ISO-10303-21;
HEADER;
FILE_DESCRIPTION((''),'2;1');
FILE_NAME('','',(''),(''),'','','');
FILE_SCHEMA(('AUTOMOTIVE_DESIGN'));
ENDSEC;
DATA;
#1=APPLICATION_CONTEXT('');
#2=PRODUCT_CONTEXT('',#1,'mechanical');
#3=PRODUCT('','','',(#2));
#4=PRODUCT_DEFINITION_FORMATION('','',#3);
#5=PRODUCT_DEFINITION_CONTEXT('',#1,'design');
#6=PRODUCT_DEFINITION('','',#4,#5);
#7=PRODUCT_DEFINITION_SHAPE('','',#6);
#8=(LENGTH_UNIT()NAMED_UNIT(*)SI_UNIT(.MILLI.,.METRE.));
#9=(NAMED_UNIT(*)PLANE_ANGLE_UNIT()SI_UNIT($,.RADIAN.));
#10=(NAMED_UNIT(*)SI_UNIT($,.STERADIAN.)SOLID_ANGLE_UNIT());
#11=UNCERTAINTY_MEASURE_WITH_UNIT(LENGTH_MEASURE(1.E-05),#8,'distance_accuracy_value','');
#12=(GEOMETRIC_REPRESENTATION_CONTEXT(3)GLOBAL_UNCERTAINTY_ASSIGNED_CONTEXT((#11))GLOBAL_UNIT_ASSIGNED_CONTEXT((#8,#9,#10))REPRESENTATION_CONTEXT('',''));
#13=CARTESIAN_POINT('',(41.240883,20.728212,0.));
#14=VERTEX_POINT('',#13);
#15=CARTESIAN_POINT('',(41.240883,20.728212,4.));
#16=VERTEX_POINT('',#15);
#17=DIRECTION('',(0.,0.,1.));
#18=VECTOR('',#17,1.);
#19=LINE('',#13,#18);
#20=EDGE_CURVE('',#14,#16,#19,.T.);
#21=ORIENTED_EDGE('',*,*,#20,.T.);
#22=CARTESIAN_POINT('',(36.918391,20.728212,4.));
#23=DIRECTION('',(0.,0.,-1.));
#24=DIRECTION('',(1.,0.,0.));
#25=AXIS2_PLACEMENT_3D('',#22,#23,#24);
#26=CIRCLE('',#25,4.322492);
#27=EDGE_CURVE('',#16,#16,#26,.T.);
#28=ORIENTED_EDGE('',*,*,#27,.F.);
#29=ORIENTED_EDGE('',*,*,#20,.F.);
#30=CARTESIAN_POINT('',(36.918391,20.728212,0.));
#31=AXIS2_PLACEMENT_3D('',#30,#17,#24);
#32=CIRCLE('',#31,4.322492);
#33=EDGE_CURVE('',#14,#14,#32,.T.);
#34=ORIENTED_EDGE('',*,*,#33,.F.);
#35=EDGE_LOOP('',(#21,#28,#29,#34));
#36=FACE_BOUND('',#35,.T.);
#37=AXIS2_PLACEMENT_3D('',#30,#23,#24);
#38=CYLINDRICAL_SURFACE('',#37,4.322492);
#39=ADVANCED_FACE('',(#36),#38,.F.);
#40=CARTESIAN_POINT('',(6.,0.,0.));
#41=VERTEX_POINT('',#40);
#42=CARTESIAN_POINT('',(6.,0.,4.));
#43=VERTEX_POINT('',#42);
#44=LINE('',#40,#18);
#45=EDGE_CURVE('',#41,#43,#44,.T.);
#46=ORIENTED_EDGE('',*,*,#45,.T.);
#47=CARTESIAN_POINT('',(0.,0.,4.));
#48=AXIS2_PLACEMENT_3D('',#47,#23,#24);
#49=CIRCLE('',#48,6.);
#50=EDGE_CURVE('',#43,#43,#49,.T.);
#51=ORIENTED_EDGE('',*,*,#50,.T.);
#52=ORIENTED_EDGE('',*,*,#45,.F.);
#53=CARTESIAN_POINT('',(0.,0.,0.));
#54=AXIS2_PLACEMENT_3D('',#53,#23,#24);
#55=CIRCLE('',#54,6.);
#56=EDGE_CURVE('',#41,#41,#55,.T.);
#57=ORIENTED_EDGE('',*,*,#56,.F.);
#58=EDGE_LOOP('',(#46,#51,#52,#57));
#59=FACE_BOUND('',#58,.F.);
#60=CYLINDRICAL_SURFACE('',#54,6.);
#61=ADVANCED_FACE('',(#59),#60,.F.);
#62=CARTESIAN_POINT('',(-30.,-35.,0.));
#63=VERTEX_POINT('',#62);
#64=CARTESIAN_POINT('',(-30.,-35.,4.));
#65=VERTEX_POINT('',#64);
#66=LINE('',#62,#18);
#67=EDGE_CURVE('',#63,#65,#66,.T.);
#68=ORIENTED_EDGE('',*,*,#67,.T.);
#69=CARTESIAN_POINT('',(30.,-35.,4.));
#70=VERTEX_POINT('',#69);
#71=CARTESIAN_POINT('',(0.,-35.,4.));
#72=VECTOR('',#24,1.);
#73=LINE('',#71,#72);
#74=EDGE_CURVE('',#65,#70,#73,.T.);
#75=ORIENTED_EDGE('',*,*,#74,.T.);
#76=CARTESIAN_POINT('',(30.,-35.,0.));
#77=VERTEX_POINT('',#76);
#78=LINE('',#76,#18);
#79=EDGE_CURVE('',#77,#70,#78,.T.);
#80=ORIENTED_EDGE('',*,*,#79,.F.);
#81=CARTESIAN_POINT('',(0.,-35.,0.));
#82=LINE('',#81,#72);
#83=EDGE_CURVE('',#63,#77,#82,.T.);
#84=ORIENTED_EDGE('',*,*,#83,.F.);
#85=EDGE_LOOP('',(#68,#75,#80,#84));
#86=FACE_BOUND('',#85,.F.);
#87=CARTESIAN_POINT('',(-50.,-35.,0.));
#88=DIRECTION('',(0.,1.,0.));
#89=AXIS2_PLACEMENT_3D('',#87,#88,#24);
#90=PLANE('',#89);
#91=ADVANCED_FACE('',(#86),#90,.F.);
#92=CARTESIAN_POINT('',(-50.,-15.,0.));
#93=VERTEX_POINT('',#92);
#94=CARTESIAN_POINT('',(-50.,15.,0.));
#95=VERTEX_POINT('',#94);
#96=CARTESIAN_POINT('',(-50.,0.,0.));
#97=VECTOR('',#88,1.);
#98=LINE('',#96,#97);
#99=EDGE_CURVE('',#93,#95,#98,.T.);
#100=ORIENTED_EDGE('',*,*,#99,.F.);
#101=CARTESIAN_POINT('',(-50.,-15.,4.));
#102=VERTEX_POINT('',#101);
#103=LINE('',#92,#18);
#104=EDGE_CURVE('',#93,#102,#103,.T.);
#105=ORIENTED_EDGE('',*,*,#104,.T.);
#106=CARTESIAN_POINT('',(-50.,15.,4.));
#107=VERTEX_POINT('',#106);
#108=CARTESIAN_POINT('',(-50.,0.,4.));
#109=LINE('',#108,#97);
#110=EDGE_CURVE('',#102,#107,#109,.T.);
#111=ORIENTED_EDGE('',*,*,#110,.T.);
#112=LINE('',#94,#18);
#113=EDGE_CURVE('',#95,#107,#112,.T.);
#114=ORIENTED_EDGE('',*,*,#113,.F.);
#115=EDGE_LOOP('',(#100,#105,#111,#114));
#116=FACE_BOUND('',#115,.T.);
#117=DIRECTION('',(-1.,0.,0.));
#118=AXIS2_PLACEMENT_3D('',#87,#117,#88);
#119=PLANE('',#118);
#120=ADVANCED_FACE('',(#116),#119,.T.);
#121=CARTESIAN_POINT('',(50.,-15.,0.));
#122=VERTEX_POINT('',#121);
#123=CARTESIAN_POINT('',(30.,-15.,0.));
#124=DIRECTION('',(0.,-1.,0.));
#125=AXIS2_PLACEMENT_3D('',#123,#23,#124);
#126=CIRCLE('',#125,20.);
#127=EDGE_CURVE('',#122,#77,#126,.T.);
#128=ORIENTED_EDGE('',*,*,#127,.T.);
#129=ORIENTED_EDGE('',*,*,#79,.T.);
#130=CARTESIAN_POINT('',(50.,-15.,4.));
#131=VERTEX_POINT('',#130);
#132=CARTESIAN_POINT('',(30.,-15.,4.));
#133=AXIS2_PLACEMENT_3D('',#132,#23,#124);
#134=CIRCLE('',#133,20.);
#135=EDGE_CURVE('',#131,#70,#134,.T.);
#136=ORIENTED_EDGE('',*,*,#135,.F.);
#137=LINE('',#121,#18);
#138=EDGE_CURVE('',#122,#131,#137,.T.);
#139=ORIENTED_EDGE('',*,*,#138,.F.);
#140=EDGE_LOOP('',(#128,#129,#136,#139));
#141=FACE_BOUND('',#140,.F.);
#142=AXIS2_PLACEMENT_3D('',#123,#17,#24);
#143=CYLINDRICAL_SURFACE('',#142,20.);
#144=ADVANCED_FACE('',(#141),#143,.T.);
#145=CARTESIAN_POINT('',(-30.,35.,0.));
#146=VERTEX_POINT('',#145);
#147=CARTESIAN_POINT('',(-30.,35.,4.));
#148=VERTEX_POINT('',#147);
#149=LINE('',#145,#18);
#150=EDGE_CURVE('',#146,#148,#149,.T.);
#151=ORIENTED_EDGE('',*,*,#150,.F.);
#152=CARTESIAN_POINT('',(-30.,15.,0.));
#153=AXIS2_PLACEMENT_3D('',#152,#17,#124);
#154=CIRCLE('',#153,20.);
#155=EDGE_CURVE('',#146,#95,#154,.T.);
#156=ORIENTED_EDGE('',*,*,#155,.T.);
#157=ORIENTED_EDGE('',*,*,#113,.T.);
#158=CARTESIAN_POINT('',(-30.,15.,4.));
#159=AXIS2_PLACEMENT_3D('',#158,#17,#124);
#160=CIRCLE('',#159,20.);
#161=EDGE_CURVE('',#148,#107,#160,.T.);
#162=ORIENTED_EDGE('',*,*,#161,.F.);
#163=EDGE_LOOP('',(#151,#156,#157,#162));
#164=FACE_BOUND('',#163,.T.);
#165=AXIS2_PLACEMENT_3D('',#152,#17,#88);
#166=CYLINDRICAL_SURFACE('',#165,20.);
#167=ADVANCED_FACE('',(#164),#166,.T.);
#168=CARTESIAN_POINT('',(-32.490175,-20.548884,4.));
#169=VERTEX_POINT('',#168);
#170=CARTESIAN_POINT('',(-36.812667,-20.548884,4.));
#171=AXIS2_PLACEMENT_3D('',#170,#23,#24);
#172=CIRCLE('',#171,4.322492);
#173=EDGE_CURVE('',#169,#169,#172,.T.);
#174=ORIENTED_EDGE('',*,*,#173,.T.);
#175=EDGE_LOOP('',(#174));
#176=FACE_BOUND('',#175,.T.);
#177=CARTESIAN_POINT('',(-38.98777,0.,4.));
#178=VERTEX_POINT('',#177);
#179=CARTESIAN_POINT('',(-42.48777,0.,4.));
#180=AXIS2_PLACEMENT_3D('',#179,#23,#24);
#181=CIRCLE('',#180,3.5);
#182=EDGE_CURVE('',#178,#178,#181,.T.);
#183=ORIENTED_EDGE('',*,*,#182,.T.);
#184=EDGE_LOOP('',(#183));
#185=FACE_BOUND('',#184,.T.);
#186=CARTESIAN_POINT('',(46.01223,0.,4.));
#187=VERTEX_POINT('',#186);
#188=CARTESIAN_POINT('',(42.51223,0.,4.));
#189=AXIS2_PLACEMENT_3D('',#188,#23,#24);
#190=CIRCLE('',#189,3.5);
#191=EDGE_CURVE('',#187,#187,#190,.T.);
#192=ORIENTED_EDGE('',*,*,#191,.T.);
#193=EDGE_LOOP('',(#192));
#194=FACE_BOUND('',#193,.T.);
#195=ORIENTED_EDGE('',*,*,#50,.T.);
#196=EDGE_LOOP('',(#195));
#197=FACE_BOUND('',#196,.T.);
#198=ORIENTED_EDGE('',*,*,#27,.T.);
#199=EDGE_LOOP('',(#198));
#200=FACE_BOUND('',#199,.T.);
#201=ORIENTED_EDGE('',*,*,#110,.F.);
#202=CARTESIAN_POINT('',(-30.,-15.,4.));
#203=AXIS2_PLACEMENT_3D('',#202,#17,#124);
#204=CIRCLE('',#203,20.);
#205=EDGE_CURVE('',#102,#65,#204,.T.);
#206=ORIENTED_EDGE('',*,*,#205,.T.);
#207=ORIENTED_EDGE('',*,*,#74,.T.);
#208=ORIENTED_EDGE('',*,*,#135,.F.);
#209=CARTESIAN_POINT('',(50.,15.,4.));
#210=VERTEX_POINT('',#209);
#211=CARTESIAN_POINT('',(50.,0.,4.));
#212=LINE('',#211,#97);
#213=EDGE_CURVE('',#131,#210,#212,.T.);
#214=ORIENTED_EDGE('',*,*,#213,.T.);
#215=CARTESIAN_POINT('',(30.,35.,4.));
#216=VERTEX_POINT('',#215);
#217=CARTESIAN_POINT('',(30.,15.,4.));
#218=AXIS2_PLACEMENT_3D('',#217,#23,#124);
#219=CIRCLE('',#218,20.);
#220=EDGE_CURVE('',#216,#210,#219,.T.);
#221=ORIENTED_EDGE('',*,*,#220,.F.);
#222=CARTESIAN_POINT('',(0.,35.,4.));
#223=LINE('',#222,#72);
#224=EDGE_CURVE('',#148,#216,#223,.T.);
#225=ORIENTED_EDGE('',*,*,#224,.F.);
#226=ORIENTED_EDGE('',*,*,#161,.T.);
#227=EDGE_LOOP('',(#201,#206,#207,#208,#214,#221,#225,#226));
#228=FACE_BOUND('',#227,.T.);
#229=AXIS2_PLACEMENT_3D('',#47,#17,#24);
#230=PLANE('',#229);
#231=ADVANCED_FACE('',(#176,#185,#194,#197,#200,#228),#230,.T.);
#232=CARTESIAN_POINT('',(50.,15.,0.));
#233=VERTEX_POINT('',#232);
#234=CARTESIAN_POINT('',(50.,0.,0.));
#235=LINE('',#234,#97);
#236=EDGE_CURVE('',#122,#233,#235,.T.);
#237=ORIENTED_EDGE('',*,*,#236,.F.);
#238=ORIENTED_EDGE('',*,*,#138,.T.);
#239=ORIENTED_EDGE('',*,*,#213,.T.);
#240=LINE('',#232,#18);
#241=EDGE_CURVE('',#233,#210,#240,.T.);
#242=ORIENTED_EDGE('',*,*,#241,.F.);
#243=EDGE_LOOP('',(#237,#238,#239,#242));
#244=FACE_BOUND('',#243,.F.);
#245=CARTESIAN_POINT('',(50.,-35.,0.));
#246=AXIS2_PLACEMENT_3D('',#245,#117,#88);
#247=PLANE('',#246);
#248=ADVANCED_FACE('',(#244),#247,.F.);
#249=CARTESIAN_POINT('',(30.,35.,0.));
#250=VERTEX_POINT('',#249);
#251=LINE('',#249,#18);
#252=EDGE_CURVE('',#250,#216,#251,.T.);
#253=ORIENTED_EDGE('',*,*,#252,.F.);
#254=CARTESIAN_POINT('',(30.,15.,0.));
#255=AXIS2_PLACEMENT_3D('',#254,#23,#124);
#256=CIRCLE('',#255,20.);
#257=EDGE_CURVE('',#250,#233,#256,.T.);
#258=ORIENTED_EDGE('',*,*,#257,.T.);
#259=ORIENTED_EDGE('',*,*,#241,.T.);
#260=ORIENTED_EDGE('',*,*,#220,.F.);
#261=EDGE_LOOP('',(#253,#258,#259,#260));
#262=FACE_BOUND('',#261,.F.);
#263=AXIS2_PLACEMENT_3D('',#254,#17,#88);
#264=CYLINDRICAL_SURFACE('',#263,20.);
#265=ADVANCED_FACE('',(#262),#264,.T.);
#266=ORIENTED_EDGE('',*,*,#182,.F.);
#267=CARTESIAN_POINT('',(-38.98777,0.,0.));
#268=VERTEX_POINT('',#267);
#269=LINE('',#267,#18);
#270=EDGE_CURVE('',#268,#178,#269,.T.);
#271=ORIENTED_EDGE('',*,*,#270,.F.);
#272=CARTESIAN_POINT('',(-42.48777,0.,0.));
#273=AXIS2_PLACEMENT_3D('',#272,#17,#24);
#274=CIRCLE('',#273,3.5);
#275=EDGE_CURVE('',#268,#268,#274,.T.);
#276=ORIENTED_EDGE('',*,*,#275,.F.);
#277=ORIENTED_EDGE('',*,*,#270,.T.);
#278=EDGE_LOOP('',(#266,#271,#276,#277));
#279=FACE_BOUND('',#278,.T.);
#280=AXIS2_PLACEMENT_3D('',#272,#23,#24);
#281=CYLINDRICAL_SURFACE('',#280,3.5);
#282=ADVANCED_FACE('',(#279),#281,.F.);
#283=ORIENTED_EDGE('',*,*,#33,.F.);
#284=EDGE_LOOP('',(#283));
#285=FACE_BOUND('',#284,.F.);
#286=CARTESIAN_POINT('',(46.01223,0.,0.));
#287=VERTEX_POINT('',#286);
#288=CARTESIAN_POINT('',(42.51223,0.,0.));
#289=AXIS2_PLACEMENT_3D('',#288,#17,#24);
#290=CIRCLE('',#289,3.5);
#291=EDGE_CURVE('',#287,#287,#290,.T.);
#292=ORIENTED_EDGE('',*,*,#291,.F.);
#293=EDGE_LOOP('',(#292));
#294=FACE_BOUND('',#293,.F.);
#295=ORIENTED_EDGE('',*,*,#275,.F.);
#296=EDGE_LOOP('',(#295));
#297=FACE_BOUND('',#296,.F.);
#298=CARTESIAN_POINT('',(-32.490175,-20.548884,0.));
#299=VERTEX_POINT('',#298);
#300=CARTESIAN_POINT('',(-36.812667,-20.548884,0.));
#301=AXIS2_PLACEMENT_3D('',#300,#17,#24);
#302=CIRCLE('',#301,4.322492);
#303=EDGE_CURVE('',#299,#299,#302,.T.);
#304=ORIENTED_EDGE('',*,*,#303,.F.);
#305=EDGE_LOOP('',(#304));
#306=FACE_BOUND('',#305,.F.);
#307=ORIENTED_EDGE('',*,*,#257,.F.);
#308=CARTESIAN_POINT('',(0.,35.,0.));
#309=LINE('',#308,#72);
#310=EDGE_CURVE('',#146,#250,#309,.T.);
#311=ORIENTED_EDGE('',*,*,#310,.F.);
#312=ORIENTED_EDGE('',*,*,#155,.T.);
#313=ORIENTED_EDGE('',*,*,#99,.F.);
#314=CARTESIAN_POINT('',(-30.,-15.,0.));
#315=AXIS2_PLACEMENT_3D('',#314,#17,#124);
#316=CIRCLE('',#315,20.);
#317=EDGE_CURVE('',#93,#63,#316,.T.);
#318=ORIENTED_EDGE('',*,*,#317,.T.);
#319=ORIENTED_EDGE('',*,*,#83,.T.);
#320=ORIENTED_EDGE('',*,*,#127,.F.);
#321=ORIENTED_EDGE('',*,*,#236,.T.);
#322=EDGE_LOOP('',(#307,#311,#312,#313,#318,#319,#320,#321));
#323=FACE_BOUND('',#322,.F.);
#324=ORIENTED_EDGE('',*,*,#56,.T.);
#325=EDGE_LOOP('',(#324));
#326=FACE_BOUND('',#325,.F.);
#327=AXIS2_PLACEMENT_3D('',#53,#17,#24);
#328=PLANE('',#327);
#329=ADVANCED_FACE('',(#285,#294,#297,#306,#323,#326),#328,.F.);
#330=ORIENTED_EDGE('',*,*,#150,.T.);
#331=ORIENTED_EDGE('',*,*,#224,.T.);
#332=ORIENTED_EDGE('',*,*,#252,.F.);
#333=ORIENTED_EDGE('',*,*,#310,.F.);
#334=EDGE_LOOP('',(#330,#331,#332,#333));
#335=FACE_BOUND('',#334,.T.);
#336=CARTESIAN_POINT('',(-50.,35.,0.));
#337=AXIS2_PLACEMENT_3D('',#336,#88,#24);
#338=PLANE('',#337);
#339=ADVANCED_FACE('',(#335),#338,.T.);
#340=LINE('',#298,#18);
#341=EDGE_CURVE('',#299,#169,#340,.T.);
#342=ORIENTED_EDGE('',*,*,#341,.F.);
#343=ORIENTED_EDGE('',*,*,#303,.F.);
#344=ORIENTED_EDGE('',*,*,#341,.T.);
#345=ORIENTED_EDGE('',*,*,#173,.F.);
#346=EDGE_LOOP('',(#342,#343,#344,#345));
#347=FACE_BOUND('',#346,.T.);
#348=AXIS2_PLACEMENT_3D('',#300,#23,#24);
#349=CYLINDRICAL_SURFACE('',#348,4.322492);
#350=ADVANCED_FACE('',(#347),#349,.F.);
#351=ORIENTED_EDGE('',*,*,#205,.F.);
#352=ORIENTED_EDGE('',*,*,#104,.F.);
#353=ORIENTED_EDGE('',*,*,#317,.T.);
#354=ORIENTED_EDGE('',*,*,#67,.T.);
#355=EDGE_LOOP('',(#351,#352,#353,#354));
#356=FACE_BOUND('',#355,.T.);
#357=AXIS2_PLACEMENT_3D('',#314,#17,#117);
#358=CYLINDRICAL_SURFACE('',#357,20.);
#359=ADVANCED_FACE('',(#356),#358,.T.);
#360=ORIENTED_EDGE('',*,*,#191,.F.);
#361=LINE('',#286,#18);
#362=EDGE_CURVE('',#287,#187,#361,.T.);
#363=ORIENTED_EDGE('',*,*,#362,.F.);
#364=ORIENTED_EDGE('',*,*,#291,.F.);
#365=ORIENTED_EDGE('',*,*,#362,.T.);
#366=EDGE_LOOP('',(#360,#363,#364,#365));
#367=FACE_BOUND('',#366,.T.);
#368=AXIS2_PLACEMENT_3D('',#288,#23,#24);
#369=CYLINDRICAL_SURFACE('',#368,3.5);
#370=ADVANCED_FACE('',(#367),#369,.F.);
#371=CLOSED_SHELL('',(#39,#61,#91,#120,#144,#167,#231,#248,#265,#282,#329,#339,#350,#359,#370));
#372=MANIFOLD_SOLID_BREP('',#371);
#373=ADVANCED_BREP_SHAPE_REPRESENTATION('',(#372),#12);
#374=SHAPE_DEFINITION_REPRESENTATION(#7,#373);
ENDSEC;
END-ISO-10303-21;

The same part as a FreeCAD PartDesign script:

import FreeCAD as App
import Part
import Sketcher
from FreeCAD import Vector
Q = App.Units.Quantity


def edges_at(feature, points):
    """Names of the edges that pass closest to the given points."""
    edges = feature.Shape.Edges
    near = lambda p: min(range(len(edges)), key=lambda i: edges[i].distToShape(Part.Vertex(*p))[0])
    return sorted({f"Edge{near(p) + 1}" for p in points})


def add_polygon(sketch, points):
    """Adds a closed chain of lines whose ends are joined by coincident constraints."""
    first, n = sketch.GeometryCount, len(points)
    for a, b in zip(points, points[1:] + points[:1]):
        sketch.addGeometry(Part.LineSegment(App.Vector(*a, 0), App.Vector(*b, 0)), False)
    for i in range(n):
        sketch.addConstraint(Sketcher.Constraint("Coincident", first + i, 2, first + (i + 1) % n, 1))

doc = App.newDocument("Part")
body = doc.addObject("PartDesign::Body", "Body")

sketch1 = doc.addObject("Sketcher::SketchObject", "Sketch")
body.addObject(sketch1)
sketch1.AttachmentSupport = (doc.XY_Plane, [""])
sketch1.MapMode = "FlatFace"
add_polygon(sketch1, [(-50, 35), (-50, -35), (50, -35), (50, 35)])
sketch1.addConstraint(Sketcher.Constraint("Vertical", 0))
sketch1.addConstraint(Sketcher.Constraint("Horizontal", 1))
sketch1.addConstraint(Sketcher.Constraint("Vertical", 2))
sketch1.addConstraint(Sketcher.Constraint("Horizontal", 3))
sketch1.addConstraint(Sketcher.Constraint("Symmetric", 0, 2, 2, 2, -1, 1))
sketch1.addConstraint(Sketcher.Constraint("DistanceX", 1, 1, 1, 2, Q("100 mm")))
sketch1.addConstraint(Sketcher.Constraint("DistanceY", 0, 2, 0, 1, Q("70 mm")))
pad1 = doc.addObject("PartDesign::Pad", "Pad")
body.addObject(pad1)
pad1.Profile = sketch1
pad1.Length = 4

sketch2 = doc.addObject("Sketcher::SketchObject", "Sketch001")
body.addObject(sketch2)
sketch2.AttachmentSupport = (doc.XY_Plane, [""])
sketch2.MapMode = "FlatFace"
sketch2.addGeometry(Part.Circle(Vector(36.9, 20.7, 0), Vector(0, 0, 1), 4.3), False)
sketch2.addGeometry(Part.Circle(Vector(-36.8, -20.5, 0), Vector(0, 0, 1), 4.3), False)
sketch2.addConstraint(Sketcher.Constraint("Equal", 0, 1))
sketch2.addConstraint(Sketcher.Constraint("Diameter", 0, Q("8.644984 mm")))
sketch2.addConstraint(Sketcher.Constraint("DistanceX", -1, 1, 0, 3, Q("36.918391 mm")))
sketch2.addConstraint(Sketcher.Constraint("DistanceY", -1, 1, 0, 3, Q("20.728212 mm")))
sketch2.addConstraint(Sketcher.Constraint("DistanceX", 1, 3, -1, 1, Q("36.812667 mm")))
sketch2.addConstraint(Sketcher.Constraint("DistanceY", 1, 3, -1, 1, Q("20.548884 mm")))
pocket1 = doc.addObject("PartDesign::Pocket", "Pocket")
body.addObject(pocket1)
pocket1.Profile = sketch2
pocket1.Length = 5
pocket1.Reversed = True

sketch3 = doc.addObject("Sketcher::SketchObject", "Sketch002")
body.addObject(sketch3)
sketch3.AttachmentSupport = (doc.XY_Plane, [""])
sketch3.MapMode = "FlatFace"
sketch3.addGeometry(Part.Circle(Vector(-42.5, 0, 0), Vector(0, 0, 1), 3.5), False)
sketch3.addGeometry(Part.Circle(Vector(42.5, 0, 0), Vector(0, 0, 1), 3.5), False)
sketch3.addConstraint(Sketcher.Constraint("Equal", 0, 1))
sketch3.addConstraint(Sketcher.Constraint("PointOnObject", 0, 3, -1))
sketch3.addConstraint(Sketcher.Constraint("PointOnObject", 1, 3, -1))
sketch3.addConstraint(Sketcher.Constraint("Diameter", 0, Q("7 mm")))
sketch3.addConstraint(Sketcher.Constraint("DistanceX", 0, 3, 1, 3, Q("85 mm")))
sketch3.addConstraint(Sketcher.Constraint("DistanceX", 0, 3, -1, 1, Q("42.48777 mm")))
pocket2 = doc.addObject("PartDesign::Pocket", "Pocket001")
body.addObject(pocket2)
pocket2.Profile = sketch3
pocket2.Length = 5
pocket2.Reversed = True
doc.recompute()

fillet = doc.addObject("PartDesign::Fillet", "Fillet")
body.addObject(fillet)
fillet.Base = (pocket2, edges_at(pocket2, [(-50, -35, 2)]))
fillet.Radius = 20
doc.recompute()

fillet2 = doc.addObject("PartDesign::Fillet", "Fillet001")
body.addObject(fillet2)
fillet2.Base = (fillet, edges_at(fillet, [(50, 35, 2)]))
fillet2.Radius = 20
doc.recompute()

fillet3 = doc.addObject("PartDesign::Fillet", "Fillet002")
body.addObject(fillet3)
fillet3.Base = (fillet2, edges_at(fillet2, [(50, -35, 2)]))
fillet3.Radius = 20
doc.recompute()

fillet4 = doc.addObject("PartDesign::Fillet", "Fillet003")
body.addObject(fillet4)
fillet4.Base = (fillet3, edges_at(fillet3, [(-50, 35, 2)]))
fillet4.Radius = 20

sketch4 = doc.addObject("Sketcher::SketchObject", "Sketch003")
body.addObject(sketch4)
sketch4.AttachmentSupport = (doc.XY_Plane, [""])
sketch4.MapMode = "FlatFace"
sketch4.addGeometry(Part.Circle(Vector(0, 0, 0), Vector(0, 0, 1), 6), False)
sketch4.addConstraint(Sketcher.Constraint("Coincident", 0, 3, -1, 1))
sketch4.addConstraint(Sketcher.Constraint("Diameter", 0, Q("12 mm")))
pocket3 = doc.addObject("PartDesign::Pocket", "Pocket002")
body.addObject(pocket3)
pocket3.Profile = sketch4
pocket3.Length = 5
pocket3.Reversed = True

doc.recompute()
